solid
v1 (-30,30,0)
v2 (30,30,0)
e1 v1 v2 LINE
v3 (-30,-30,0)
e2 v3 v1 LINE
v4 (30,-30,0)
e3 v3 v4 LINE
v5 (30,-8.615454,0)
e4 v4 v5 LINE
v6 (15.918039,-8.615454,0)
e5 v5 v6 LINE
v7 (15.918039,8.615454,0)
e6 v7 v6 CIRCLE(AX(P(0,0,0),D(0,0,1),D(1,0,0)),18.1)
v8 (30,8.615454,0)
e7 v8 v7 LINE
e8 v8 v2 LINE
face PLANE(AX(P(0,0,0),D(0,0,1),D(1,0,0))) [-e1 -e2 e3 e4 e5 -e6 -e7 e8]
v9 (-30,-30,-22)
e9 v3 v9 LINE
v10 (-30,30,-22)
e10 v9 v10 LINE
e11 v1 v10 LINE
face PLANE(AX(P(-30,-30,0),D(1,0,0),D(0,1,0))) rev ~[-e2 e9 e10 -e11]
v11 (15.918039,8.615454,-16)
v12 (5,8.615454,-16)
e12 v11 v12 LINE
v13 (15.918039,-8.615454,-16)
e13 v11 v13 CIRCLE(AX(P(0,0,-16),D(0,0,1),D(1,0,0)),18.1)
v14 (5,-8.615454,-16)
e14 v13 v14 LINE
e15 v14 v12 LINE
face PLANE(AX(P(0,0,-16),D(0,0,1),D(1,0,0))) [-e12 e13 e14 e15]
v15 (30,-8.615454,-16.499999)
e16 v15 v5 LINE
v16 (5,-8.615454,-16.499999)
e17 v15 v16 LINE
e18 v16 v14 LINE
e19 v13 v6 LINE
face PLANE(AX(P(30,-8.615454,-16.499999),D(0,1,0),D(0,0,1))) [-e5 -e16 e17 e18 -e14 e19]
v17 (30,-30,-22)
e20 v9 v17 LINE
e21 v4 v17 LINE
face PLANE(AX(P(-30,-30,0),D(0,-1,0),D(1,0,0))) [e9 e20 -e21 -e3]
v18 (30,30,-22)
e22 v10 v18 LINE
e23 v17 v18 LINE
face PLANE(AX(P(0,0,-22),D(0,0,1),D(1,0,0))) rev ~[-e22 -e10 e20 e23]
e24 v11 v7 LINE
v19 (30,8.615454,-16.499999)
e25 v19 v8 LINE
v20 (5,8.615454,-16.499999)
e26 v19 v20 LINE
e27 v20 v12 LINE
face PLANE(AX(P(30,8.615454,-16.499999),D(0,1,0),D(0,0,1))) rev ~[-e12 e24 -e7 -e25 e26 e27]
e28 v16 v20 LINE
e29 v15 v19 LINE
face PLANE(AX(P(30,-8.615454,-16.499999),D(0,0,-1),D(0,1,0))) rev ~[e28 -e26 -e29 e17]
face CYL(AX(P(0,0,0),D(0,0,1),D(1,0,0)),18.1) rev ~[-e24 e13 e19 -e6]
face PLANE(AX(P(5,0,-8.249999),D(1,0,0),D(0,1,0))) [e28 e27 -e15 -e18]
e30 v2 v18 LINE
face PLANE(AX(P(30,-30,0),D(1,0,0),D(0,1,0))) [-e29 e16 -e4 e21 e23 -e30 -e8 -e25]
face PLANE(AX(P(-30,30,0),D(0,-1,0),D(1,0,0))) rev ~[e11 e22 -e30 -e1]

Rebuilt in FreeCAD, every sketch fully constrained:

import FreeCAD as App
import Part
import Sketcher
from FreeCAD import Vector
Q = App.Units.Quantity

doc = App.newDocument("Part")
body = doc.addObject("PartDesign::Body", "Body")

# Sketch on XY plane
sketch1 = body.newObject("Sketcher::SketchObject", "Sketch")
sketch1.AttachmentSupport = (doc.getObject("XY_Plane"), [""])
sketch1.MapMode = "FlatFace"
sketch1.addGeometry(Part.LineSegment(Vector(-30, 30, 0), Vector(-30, -30, 0)), False)
sketch1.addGeometry(Part.LineSegment(Vector(-30, -30, 0), Vector(30, -30, 0)), False)
sketch1.addGeometry(Part.LineSegment(Vector(30, -30, 0), Vector(30, 30, 0)), False)
sketch1.addGeometry(Part.LineSegment(Vector(30, 30, 0), Vector(-30, 30, 0)), False)
sketch1.addConstraint(Sketcher.Constraint("Coincident", 0, 2, 1, 1))
sketch1.addConstraint(Sketcher.Constraint("Coincident", 1, 2, 2, 1))
sketch1.addConstraint(Sketcher.Constraint("Coincident", 2, 2, 3, 1))
sketch1.addConstraint(Sketcher.Constraint("Coincident", 3, 2, 0, 1))
sketch1.addConstraint(Sketcher.Constraint("Vertical", 0))
sketch1.addConstraint(Sketcher.Constraint("Horizontal", 1))
sketch1.addConstraint(Sketcher.Constraint("Vertical", 2))
sketch1.addConstraint(Sketcher.Constraint("Horizontal", 3))
sketch1.addConstraint(Sketcher.Constraint("Symmetric", 0, 2, 2, 2, -1, 1))
sketch1.addConstraint(Sketcher.Constraint("Equal", 3, 0))
sketch1.addConstraint(Sketcher.Constraint("DistanceX", 1, 1, 1, 2, Q("60 mm")))
pad1 = body.newObject("PartDesign::Pad", "Pad")
pad1.Profile = sketch1
pad1.Length = 22
pad1.Reversed = True

# Sketch on XY plane
sketch2 = body.newObject("Sketcher::SketchObject", "Sketch001")
sketch2.AttachmentSupport = (doc.getObject("XY_Plane"), [""])
sketch2.MapMode = "FlatFace"
sketch2.addGeometry(Part.Circle(Vector(0, 0, 0), Vector(0, 0, 1), 18), False)
sketch2.addConstraint(Sketcher.Constraint("Coincident", 0, 3, -1, 1))
sketch2.addConstraint(Sketcher.Constraint("Diameter", 0, Q("36.2 mm")))
pocket1 = body.newObject("PartDesign::Pocket", "Pocket")
pocket1.Profile = sketch2
pocket1.Length = 16

# Sketch on YZ plane
sketch3 = body.newObject("Sketcher::SketchObject", "Sketch002")
sketch3.AttachmentSupport = (doc.getObject("YZ_Plane"), [""])
sketch3.MapMode = "FlatFace"
sketch3.AttachmentOffset = App.Placement(Vector(0, 0, 30), App.Rotation())
sketch3.addGeometry(Part.LineSegment(Vector(-9, 0, 0), Vector(-9, -16, 0)), False)
sketch3.addGeometry(Part.LineSegment(Vector(-9, -16, 0), Vector(9, -16, 0)), False)
sketch3.addGeometry(Part.LineSegment(Vector(9, -16, 0), Vector(9, 0, 0)), False)
sketch3.addGeometry(Part.LineSegment(Vector(9, 0, 0), Vector(-9, 0, 0)), False)
sketch3.addConstraint(Sketcher.Constraint("Coincident", 0, 2, 1, 1))
sketch3.addConstraint(Sketcher.Constraint("Coincident", 1, 2, 2, 1))
sketch3.addConstraint(Sketcher.Constraint("Coincident", 2, 2, 3, 1))
sketch3.addConstraint(Sketcher.Constraint("Coincident", 3, 2, 0, 1))
sketch3.addConstraint(Sketcher.Constraint("Vertical", 0))
sketch3.addConstraint(Sketcher.Constraint("Horizontal", 1))
sketch3.addConstraint(Sketcher.Constraint("Vertical", 2))
sketch3.addConstraint(Sketcher.Constraint("Horizontal", 3))
sketch3.addConstraint(Sketcher.Constraint("Symmetric", 2, 2, 3, 2, -1, 1))
sketch3.addConstraint(Sketcher.Constraint("DistanceY", 0, 2, 0, 1, Q("16.499999 mm")))
sketch3.addConstraint(Sketcher.Constraint("DistanceX", 1, 1, 1, 2, Q("17.230908 mm")))
pocket2 = body.newObject("PartDesign::Pocket", "Pocket001")
pocket2.Profile = sketch3
pocket2.Length = 25

doc.recompute()
